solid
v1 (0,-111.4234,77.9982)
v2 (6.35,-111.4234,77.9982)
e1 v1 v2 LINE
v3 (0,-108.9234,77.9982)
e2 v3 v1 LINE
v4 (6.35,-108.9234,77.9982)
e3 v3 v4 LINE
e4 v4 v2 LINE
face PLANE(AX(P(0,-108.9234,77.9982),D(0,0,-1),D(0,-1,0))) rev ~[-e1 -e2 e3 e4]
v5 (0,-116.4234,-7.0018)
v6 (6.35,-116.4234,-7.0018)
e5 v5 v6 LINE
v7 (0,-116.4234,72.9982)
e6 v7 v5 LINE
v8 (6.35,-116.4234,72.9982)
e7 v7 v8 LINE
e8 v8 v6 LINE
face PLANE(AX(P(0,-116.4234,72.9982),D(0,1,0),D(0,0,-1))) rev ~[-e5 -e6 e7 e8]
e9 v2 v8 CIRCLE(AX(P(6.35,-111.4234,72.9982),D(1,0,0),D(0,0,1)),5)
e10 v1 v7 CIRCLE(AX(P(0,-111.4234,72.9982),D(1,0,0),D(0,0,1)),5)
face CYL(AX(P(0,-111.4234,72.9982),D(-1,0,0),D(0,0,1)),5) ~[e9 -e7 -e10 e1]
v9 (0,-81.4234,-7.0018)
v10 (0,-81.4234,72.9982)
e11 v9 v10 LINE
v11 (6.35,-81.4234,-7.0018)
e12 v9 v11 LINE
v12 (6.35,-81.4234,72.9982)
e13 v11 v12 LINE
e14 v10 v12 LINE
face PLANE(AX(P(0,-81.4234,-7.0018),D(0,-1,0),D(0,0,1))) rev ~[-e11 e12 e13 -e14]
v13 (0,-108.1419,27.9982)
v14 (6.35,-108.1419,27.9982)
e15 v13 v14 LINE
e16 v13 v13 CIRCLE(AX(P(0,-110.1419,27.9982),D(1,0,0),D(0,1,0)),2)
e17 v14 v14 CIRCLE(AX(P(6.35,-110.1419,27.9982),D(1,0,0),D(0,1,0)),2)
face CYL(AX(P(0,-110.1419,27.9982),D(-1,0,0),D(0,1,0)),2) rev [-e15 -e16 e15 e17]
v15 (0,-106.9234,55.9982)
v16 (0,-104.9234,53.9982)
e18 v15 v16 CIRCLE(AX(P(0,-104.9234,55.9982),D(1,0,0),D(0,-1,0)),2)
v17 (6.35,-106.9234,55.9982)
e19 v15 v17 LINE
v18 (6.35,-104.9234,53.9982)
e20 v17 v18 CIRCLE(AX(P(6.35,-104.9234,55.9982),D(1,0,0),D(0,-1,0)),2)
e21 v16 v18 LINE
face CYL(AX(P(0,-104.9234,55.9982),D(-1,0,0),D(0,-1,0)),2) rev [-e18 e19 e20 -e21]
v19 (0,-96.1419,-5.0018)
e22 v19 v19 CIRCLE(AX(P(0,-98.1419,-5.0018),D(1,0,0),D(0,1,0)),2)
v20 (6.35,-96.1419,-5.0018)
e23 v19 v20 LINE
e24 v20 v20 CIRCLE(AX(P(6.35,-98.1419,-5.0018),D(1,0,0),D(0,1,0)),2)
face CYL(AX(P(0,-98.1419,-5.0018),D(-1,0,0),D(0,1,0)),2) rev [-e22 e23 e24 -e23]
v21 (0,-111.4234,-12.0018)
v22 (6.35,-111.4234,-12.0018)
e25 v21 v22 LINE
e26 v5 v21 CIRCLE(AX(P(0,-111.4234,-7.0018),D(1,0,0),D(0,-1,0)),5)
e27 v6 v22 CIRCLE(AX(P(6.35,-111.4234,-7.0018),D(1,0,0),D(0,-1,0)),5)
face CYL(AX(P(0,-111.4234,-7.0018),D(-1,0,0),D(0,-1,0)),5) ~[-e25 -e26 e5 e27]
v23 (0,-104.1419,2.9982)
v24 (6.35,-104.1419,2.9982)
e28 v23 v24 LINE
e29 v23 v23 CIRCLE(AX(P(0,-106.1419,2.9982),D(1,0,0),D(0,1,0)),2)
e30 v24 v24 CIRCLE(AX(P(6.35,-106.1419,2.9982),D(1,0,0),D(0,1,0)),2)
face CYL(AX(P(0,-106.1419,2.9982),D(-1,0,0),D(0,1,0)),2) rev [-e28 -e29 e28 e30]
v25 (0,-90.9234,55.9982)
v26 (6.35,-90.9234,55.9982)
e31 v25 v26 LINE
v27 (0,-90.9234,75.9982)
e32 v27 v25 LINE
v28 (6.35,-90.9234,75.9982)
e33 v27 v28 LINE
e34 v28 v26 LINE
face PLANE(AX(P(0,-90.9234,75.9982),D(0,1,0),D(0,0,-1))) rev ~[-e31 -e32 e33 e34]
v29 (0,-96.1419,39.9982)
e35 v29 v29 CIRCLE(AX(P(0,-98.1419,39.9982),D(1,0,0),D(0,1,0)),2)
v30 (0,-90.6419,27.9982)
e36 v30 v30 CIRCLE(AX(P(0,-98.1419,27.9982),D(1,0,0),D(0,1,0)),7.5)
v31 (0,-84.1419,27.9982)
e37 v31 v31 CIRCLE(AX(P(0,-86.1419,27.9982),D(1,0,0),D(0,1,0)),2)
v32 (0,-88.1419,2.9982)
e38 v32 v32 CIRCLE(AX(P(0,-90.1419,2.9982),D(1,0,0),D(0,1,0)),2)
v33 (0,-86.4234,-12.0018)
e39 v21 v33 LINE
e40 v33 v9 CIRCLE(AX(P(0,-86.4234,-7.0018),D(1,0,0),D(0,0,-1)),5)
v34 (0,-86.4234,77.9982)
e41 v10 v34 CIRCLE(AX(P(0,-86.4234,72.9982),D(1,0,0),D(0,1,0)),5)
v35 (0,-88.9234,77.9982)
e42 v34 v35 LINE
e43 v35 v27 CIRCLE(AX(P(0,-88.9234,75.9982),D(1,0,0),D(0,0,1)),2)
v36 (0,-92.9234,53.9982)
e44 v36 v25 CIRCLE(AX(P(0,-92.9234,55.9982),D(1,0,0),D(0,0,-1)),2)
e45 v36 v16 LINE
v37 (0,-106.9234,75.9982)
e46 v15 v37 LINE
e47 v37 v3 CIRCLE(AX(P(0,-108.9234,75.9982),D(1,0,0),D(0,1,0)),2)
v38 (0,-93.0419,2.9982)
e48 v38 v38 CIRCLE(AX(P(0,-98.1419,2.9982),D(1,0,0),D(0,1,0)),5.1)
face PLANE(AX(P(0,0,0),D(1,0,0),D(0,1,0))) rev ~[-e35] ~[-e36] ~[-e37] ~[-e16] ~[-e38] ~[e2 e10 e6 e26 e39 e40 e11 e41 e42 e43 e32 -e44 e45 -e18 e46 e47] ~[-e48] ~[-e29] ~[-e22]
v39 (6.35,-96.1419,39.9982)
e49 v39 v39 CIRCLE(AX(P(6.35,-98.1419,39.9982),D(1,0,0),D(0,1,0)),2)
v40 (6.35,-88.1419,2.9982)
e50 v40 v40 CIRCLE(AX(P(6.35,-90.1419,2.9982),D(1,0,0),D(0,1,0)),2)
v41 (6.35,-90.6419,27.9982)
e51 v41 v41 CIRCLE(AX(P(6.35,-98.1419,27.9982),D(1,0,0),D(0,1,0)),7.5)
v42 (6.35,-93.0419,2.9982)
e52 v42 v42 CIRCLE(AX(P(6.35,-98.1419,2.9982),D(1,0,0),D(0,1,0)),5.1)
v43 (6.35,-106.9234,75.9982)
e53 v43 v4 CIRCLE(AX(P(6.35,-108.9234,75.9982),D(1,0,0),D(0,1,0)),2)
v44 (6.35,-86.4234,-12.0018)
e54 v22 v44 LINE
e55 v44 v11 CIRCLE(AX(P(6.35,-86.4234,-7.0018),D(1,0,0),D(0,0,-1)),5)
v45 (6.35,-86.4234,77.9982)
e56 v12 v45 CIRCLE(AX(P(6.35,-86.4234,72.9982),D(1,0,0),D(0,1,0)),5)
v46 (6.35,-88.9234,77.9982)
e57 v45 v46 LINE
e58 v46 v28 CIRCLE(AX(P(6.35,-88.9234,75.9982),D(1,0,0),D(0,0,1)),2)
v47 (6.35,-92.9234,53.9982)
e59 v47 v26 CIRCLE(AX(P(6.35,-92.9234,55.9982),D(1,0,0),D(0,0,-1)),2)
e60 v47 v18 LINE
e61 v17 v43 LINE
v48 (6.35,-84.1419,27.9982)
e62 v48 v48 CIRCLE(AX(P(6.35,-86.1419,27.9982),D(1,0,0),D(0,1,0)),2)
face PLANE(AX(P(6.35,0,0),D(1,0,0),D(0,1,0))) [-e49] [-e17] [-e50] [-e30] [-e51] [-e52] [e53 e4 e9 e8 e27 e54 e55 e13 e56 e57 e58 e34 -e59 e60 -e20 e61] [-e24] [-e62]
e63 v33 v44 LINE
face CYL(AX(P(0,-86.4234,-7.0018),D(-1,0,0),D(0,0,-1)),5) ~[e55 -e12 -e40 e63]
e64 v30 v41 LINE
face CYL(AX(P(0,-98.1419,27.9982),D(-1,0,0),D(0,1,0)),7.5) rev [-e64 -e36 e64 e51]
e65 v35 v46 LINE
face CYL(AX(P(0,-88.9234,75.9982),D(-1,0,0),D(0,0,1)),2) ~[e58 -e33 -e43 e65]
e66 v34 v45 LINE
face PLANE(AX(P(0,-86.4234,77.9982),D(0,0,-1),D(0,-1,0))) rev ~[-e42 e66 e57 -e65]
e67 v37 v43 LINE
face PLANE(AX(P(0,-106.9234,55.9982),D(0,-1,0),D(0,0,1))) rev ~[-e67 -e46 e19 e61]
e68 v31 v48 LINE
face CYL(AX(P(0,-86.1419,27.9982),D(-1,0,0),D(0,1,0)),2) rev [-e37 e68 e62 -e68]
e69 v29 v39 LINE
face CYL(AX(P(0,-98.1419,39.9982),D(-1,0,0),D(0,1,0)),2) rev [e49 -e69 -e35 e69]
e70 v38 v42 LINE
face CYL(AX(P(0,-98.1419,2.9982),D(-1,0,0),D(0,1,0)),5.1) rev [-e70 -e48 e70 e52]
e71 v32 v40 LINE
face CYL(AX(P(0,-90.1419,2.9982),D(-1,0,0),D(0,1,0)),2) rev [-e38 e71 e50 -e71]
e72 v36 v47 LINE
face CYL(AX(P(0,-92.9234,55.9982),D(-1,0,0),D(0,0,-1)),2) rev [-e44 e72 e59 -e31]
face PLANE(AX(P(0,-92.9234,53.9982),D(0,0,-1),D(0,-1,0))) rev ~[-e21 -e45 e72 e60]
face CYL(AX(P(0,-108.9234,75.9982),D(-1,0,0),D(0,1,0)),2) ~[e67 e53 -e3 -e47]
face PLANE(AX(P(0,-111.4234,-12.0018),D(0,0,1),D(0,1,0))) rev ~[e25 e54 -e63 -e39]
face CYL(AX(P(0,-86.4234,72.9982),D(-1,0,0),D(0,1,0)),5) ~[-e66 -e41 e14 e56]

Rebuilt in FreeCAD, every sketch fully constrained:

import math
import FreeCAD as App
import Part
import Sketcher
from FreeCAD import Vector
Q = App.Units.Quantity

doc = App.newDocument("Part")
body = doc.addObject("PartDesign::Body", "Body")

# Sketch on YZ plane
sketch1 = body.newObject("Sketcher::SketchObject", "Sketch")
sketch1.AttachmentSupport = (doc.getObject("YZ_Plane"), [""])
sketch1.MapMode = "FlatFace"
sketch1.addGeometry([
    Part.ArcOfCircle(Part.Circle(Vector(-111.4, 73, 0), Vector(0, 0, 1), 5), math.radians(90), math.radians(180)),  # 0
    Part.LineSegment(Vector(-116.4, 73, 0), Vector(-116.4, -7, 0)),  # 1
    Part.ArcOfCircle(Part.Circle(Vector(-111.4, -7, 0), Vector(0, 0, 1), 5), math.radians(180), math.radians(270)),  # 2
    Part.LineSegment(Vector(-111.4, -12, 0), Vector(-86.4, -12, 0)),  # 3
    Part.ArcOfCircle(Part.Circle(Vector(-86.4, -7, 0), Vector(0, 0, 1), 5), math.radians(-90), math.radians(0)),  # 4
    Part.LineSegment(Vector(-81.4, -7, 0), Vector(-81.4, 73, 0)),  # 5
    Part.ArcOfCircle(Part.Circle(Vector(-86.4, 73, 0), Vector(0, 0, 1), 5), math.radians(0), math.radians(90)),  # 6
    Part.LineSegment(Vector(-86.4, 78, 0), Vector(-88.9, 78, 0)),  # 7
    Part.ArcOfCircle(Part.Circle(Vector(-88.9, 76, 0), Vector(0, 0, 1), 2), math.radians(90), math.radians(180)),  # 8
    Part.LineSegment(Vector(-90.9, 76, 0), Vector(-90.9, 56, 0)),  # 9
    Part.ArcOfCircle(Part.Circle(Vector(-92.9, 56, 0), Vector(0, 0, 1), 2), math.radians(-90), math.radians(0)),  # 10
    Part.LineSegment(Vector(-92.9, 54, 0), Vector(-104.9, 54, 0)),  # 11
    Part.ArcOfCircle(Part.Circle(Vector(-104.9, 56, 0), Vector(0, 0, 1), 2), math.radians(180), math.radians(270)),  # 12
    Part.LineSegment(Vector(-106.9, 56, 0), Vector(-106.9, 76, 0)),  # 13
    Part.ArcOfCircle(Part.Circle(Vector(-108.9, 76, 0), Vector(0, 0, 1), 2), math.radians(0), math.radians(90)),  # 14
    Part.LineSegment(Vector(-108.9, 78, 0), Vector(-111.4, 78, 0)),  # 15
    Part.Circle(Vector(-106.1, 3, 0), Vector(0, 0, 1), 2),  # 16
    Part.Circle(Vector(-98.1, -5, 0), Vector(0, 0, 1), 2),  # 17
    Part.Circle(Vector(-98.1, 3, 0), Vector(0, 0, 1), 5.1),  # 18
    Part.Circle(Vector(-90.1, 3, 0), Vector(0, 0, 1), 2),  # 19
    Part.Circle(Vector(-110.1, 28, 0), Vector(0, 0, 1), 2),  # 20
    Part.Circle(Vector(-98.1, 28, 0), Vector(0, 0, 1), 7.5),  # 21
    Part.Circle(Vector(-86.1, 28, 0), Vector(0, 0, 1), 2),  # 22
    Part.Circle(Vector(-98.1, 40, 0), Vector(0, 0, 1), 2),  # 23
], False)
sketch1.addConstraint([
    Sketcher.Constraint("Tangent", 0, 2, 1, 1),
    Sketcher.Constraint("Tangent", 1, 2, 2, 1),
    Sketcher.Constraint("Tangent", 2, 2, 3, 1),
    Sketcher.Constraint("Tangent", 3, 2, 4, 1),
    Sketcher.Constraint("Tangent", 4, 2, 5, 1),
    Sketcher.Constraint("Tangent", 5, 2, 6, 1),
    Sketcher.Constraint("Tangent", 6, 2, 7, 1),
    Sketcher.Constraint("Tangent", 7, 2, 8, 1),
    Sketcher.Constraint("Tangent", 8, 2, 9, 1),
    Sketcher.Constraint("Tangent", 9, 2, 10, 2),
    Sketcher.Constraint("Tangent", 10, 1, 11, 1),
    Sketcher.Constraint("Tangent", 11, 2, 12, 2),
    Sketcher.Constraint("Tangent", 12, 1, 13, 1),
    Sketcher.Constraint("Tangent", 13, 2, 14, 1),
    Sketcher.Constraint("Tangent", 14, 2, 15, 1),
    Sketcher.Constraint("Tangent", 15, 2, 0, 1),
    Sketcher.Constraint("Vertical", 1),
    Sketcher.Constraint("Horizontal", 3),
    Sketcher.Constraint("Vertical", 5),
    Sketcher.Constraint("Horizontal", 7),
    Sketcher.Constraint("Vertical", 9),
    Sketcher.Constraint("Horizontal", 11),
    Sketcher.Constraint("Vertical", 13),
    Sketcher.Constraint("Horizontal", 15),
    Sketcher.Constraint("Equal", 0, 2),
    Sketcher.Constraint("Equal", 2, 4),
    Sketcher.Constraint("Equal", 4, 6),
    Sketcher.Constraint("Equal", 8, 10),
    Sketcher.Constraint("Equal", 10, 12),
    Sketcher.Constraint("Equal", 12, 14),
    Sketcher.Constraint("Equal", 14, 16),
    Sketcher.Constraint("Equal", 16, 17),
    Sketcher.Constraint("Equal", 17, 19),
    Sketcher.Constraint("Equal", 19, 20),
    Sketcher.Constraint("Equal", 20, 22),
    Sketcher.Constraint("Equal", 22, 23),
    Sketcher.Constraint("Horizontal", 0, 3, 6, 3),
    Sketcher.Constraint("Horizontal", 16, 3, 18, 3),
    Sketcher.Constraint("Horizontal", 18, 3, 19, 3),
    Sketcher.Constraint("Horizontal", 20, 3, 21, 3),
    Sketcher.Constraint("Horizontal", 21, 3, 22, 3),
    Sketcher.Constraint("Vertical", 17, 3, 18, 3),
    Sketcher.Constraint("Vertical", 18, 3, 21, 3),
    Sketcher.Constraint("Vertical", 21, 3, 23, 3),
    Sketcher.Constraint("Equal", 7, 15),
    Sketcher.Constraint("Diameter", 16, Q("4 mm")),
    Sketcher.Constraint("Diameter", 21, Q("15 mm")),
    Sketcher.Constraint("Radius", 0, Q("5 mm")),
    Sketcher.Constraint("Diameter", 18, Q("10.2 mm")),
    Sketcher.Constraint("DistanceX", 3, 1, 3, 2, Q("25 mm")),
    Sketcher.Constraint("DistanceX", 11, 2, 11, 1, Q("12 mm")),
    Sketcher.Constraint("DistanceX", 16, 3, 17, 3, Q("8 mm")),
    Sketcher.Constraint("DistanceY", 17, 3, 16, 3, Q("8 mm")),
    Sketcher.Constraint("DistanceY", 4, 3, 17, 3, Q("2 mm")),
    Sketcher.Constraint("DistanceX", 18, 3, 19, 3, Q("8 mm")),
    Sketcher.Constraint("DistanceX", 20, 3, 16, 3, Q("4 mm")),
    Sketcher.Constraint("DistanceY", 16, 3, 20, 3, Q("25 mm")),
    Sketcher.Constraint("DistanceX", 21, 3, 22, 3, Q("12 mm")),
    Sketcher.Constraint("DistanceY", 21, 3, 23, 3, Q("12 mm")),
    Sketcher.Constraint("DistanceY", 23, 3, 10, 3, Q("16 mm")),
    Sketcher.Constraint("DistanceY", 1, 2, 1, 1, Q("80 mm")),
    Sketcher.Constraint("DistanceX", 16, 3, -1, 1, Q("106.142 mm")),
    Sketcher.Constraint("DistanceX", 0, 3, -1, 1, Q("111.4234 mm")),
    Sketcher.Constraint("DistanceY", -1, 1, 0, 3, Q("72.9982 mm")),
])
pad1 = body.newObject("PartDesign::Pad", "Pad")
pad1.Profile = sketch1
pad1.Length = 6.35

doc.recompute()
